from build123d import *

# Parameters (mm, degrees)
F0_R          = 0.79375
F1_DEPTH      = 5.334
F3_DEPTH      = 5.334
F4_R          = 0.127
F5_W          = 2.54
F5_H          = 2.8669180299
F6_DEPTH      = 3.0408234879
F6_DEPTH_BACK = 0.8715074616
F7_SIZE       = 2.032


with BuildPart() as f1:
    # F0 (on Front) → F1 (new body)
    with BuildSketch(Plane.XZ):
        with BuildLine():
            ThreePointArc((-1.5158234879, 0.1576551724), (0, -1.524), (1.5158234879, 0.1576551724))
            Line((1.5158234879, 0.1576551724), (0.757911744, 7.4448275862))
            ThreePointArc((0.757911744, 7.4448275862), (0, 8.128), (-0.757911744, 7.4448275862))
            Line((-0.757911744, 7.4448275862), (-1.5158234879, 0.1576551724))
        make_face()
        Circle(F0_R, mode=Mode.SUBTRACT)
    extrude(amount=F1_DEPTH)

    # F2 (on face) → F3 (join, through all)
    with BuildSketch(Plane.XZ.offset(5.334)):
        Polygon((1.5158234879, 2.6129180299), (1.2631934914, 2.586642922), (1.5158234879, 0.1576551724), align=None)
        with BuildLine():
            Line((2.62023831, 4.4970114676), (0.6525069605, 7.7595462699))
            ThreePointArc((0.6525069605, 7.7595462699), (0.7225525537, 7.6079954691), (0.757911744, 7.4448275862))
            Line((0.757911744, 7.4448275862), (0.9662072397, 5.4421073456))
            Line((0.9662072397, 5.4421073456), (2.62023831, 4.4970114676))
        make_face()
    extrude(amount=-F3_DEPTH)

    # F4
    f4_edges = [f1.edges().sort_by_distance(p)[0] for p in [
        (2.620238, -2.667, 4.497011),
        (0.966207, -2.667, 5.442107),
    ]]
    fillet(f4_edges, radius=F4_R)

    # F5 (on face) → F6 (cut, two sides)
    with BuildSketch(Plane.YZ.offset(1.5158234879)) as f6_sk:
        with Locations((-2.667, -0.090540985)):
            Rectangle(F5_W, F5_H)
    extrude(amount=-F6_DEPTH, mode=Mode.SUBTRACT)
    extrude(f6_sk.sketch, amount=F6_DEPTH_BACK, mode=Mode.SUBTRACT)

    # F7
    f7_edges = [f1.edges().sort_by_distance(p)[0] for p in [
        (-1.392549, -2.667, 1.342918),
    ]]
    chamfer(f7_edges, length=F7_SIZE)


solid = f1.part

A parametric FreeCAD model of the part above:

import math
import FreeCAD as App
import Part
import Sketcher
Q = App.Units.Quantity


def edges_at(feature, points):
    """Names of the edges that pass closest to the given points."""
    edges = feature.Shape.Edges
    near = lambda p: min(range(len(edges)), key=lambda i: edges[i].distToShape(Part.Vertex(*p))[0])
    return sorted({f"Edge{near(p) + 1}" for p in points})


def add_polygon(sketch, points):
    """Adds a closed chain of lines whose ends are joined by coincident constraints."""
    first, n = sketch.GeometryCount, len(points)
    for a, b in zip(points, points[1:] + points[:1]):
        sketch.addGeometry(Part.LineSegment(App.Vector(*a, 0), App.Vector(*b, 0)), False)
    for i in range(n):
        sketch.addConstraint(Sketcher.Constraint("Coincident", first + i, 2, first + (i + 1) % n, 1))

doc = App.newDocument("Part")
body = doc.addObject("PartDesign::Body", "Body")

sketch1 = doc.addObject("Sketcher::SketchObject", "Sketch")
body.addObject(sketch1)
sketch1.AttachmentSupport = (doc.XZ_Plane, [""])
sketch1.MapMode = "FlatFace"
sketch1.addGeometry([
    Part.ArcOfCircle(Part.Circle(App.Vector(0, 0, 0), App.Vector(0, 0, 1), 1.524), math.radians(174.062228), math.radians(365.937772)),
    Part.LineSegment(App.Vector(1.515823, 0.157655, 0), App.Vector(0.757912, 7.444828, 0)),
    Part.ArcOfCircle(Part.Circle(App.Vector(0, 7.366, 0), App.Vector(0, 0, 1), 0.762), math.radians(5.937772), math.radians(174.062228)),
    Part.LineSegment(App.Vector(-0.757912, 7.444828, 0), App.Vector(-1.515823, 0.157655, 0)),
    Part.Circle(App.Vector(0, 0, 0), App.Vector(0, 0, 1), 0.79375),
], False)
sketch1.addConstraint([
    Sketcher.Constraint("Tangent", 0, 2, 1, 1),
    Sketcher.Constraint("Tangent", 1, 2, 2, 1),
    Sketcher.Constraint("Tangent", 2, 2, 3, 1),
    Sketcher.Constraint("Tangent", 3, 2, 0, 1),
    Sketcher.Constraint("Coincident", 0, 3, -1, 1),
    Sketcher.Constraint("Coincident", 4, 3, -1, 1),
    Sketcher.Constraint("PointOnObject", 2, 3, -2),
    Sketcher.Constraint("Radius", 0, Q("0.06 in")),
    Sketcher.Constraint("Radius", 2, Q("0.03 in")),
    Sketcher.Constraint("Diameter", 4, Q("0.0625 in")),
    Sketcher.Constraint("DistanceY", -1, 1, 2, 3, Q("0.29 in")),
])
pad1 = doc.addObject("PartDesign::Pad", "Pad")
body.addObject(pad1)
pad1.Profile = sketch1
pad1.Length = Q("0.21 in")

sketch2 = doc.addObject("Sketcher::SketchObject", "Sketch001")
body.addObject(sketch2)
sketch2.AttachmentSupport = (doc.XZ_Plane, [""])
sketch2.MapMode = "FlatFace"
sketch2.AttachmentOffset = App.Placement(App.Vector(0, 0, 0.21 * 25.4), App.Rotation())
add_polygon(sketch2, [(1.515823, 2.612918), (1.263193, 2.586643), (1.515823, 0.157655)])
sketch2.addGeometry(Part.LineSegment(App.Vector(2.620238, 4.497011, 0), App.Vector(0.652507, 7.759546, 0)), False)
sketch2.addGeometry(Part.ArcOfCircle(Part.Circle(App.Vector(0, 7.366, 0), App.Vector(0, 0, 1), 0.762), math.radians(5.937772), math.radians(31.095423)), False)
sketch2.addGeometry(Part.LineSegment(App.Vector(0.757912, 7.444828, 0), App.Vector(0.966207, 5.442107, 0)), False)
sketch2.addGeometry(Part.LineSegment(App.Vector(0.966207, 5.442107, 0), App.Vector(2.620238, 4.497011, 0)), False)
sketch2.addConstraint([
    Sketcher.Constraint("Tangent", 3, 2, 4, 2),
    Sketcher.Constraint("Tangent", 4, 1, 5, 1),
    Sketcher.Constraint("Coincident", 5, 2, 6, 1),
    Sketcher.Constraint("Coincident", 6, 2, 3, 1),
    Sketcher.Constraint("Vertical", 2),
    Sketcher.Constraint("PointOnObject", 4, 3, -2),
    Sketcher.Constraint("Perpendicular", 0, 1),
    Sketcher.Constraint("Parallel", 1, 5),
    Sketcher.Constraint("Radius", 4, Q("0.03 in")),
    Sketcher.Constraint("Distance", 3, Q("0.15 in")),
    Sketcher.Constraint("DistanceY", -1, 1, 4, 3, Q("0.29 in")),
    Sketcher.Constraint("Distance", 6, Q("0.075 in")),
    Sketcher.Constraint("DistanceX", 3, 2, 5, 2, 0.3137),
    Sketcher.Constraint("Distance", 1, 2.44209),
    Sketcher.Constraint("DistanceY", 2, 1, 2, 2, 2.455263),
    Sketcher.Constraint("DistanceY", -1, 1, 2, 2, 2.612918),
    Sketcher.Constraint("DistanceX", 4, 1, 0, 2, 0.505282),
])
pad2 = doc.addObject("PartDesign::Pad", "Pad001")
body.addObject(pad2)
pad2.Profile = sketch2
pad2.Length = Q("0.21 in")
pad2.Reversed = True
doc.recompute()

fillet = doc.addObject("PartDesign::Fillet", "Fillet")
body.addObject(fillet)
fillet.Base = (pad2, edges_at(pad2, [(2.62, -2.667, 4.497), (0.966, -2.667, 5.442)]))
fillet.Radius = Q("0.005 in")

sketch3 = doc.addObject("Sketcher::SketchObject", "Sketch002")
body.addObject(sketch3)
sketch3.AttachmentSupport = (doc.YZ_Plane, [""])
sketch3.MapMode = "FlatFace"
sketch3.AttachmentOffset = App.Placement(App.Vector(0, 0, 1.515823), App.Rotation())
add_polygon(sketch3, [(-3.937, 1.342918), (-3.937, -1.524), (-1.397, -1.524), (-1.397, 1.342918)])
sketch3.addConstraint([
    Sketcher.Constraint("Vertical", 0),
    Sketcher.Constraint("Horizontal", 1),
    Sketcher.Constraint("Vertical", 2),
    Sketcher.Constraint("Horizontal", 3),
    Sketcher.Constraint("DistanceX", 1, 1, 1, 2, Q("0.1 in")),
    Sketcher.Constraint("DistanceY", 0, 2, -1, 1, Q("0.06 in")),
    Sketcher.Constraint("DistanceX", 0, 2, -1, 1, Q("0.155 in")),
    Sketcher.Constraint("DistanceY", 0, 2, 0, 1, 2.866918),
])
pocket1 = doc.addObject("PartDesign::Pocket", "Pocket")
body.addObject(pocket1)
pocket1.Profile = sketch3
pocket1.Type = "ThroughAll"
pocket1.Midplane = True
doc.recompute()

chamfer = doc.addObject("PartDesign::Chamfer", "Chamfer")
body.addObject(chamfer)
chamfer.Base = (pocket1, edges_at(pocket1, [(-1.393, -2.667, 1.343)]))
chamfer.Size = Q("0.08 in")

doc.recompute()
